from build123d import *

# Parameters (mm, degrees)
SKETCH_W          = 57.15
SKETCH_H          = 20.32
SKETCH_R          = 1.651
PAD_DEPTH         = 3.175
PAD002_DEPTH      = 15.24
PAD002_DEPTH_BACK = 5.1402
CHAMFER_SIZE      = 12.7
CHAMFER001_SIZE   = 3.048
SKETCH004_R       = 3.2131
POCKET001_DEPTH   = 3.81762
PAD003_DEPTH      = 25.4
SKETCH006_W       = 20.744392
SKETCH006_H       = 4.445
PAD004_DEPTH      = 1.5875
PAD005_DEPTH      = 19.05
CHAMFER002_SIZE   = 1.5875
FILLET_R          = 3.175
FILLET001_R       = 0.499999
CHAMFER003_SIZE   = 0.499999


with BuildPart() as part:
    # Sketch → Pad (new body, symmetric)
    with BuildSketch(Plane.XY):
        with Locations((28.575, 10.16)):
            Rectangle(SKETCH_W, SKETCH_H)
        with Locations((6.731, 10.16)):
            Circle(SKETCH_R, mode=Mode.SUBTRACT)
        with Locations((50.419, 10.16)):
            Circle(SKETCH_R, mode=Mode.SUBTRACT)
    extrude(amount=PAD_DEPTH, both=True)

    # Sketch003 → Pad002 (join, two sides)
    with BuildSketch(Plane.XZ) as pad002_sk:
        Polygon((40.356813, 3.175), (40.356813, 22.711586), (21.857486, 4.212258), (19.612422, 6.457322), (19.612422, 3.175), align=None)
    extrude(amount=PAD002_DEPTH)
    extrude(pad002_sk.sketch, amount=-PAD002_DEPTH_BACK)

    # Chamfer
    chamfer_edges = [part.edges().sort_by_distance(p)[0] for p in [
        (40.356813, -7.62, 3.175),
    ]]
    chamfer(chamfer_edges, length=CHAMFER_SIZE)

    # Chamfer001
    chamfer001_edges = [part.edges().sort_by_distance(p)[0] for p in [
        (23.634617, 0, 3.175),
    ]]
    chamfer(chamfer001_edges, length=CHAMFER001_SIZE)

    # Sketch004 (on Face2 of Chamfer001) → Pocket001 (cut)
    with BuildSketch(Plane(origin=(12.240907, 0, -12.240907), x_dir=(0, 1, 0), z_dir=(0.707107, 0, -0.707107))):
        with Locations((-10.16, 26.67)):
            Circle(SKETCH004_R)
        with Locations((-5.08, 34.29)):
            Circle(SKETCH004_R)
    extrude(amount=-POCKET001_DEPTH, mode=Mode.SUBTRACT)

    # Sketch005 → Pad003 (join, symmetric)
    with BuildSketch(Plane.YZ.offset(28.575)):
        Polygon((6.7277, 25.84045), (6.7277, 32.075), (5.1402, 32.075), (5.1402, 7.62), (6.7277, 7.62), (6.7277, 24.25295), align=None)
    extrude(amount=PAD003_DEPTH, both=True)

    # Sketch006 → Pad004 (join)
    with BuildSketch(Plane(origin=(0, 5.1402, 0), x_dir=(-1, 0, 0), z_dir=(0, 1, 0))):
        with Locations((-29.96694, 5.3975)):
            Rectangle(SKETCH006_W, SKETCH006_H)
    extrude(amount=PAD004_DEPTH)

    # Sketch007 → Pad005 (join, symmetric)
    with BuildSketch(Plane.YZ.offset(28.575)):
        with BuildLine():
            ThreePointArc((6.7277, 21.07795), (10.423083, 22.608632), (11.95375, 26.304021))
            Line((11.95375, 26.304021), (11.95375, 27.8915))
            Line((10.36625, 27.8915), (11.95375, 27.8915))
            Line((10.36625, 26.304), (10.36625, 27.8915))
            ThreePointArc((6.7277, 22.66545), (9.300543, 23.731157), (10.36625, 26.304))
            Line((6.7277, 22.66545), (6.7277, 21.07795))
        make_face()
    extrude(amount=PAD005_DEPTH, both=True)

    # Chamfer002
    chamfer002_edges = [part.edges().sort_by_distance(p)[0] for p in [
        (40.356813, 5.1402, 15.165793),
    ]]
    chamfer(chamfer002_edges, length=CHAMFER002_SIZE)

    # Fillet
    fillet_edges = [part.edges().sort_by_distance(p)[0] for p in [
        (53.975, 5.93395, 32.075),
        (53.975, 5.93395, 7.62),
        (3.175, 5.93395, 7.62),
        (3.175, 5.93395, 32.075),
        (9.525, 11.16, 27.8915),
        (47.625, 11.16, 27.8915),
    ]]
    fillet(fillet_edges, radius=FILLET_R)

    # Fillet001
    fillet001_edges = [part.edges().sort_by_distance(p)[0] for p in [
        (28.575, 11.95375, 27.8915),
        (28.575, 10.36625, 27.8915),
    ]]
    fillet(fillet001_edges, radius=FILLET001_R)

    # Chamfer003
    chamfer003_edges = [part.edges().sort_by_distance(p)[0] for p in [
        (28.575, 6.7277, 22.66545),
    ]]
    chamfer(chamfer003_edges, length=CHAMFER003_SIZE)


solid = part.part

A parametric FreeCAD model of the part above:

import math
import FreeCAD as App
import Part
import Sketcher
Q = App.Units.Quantity


def edges_at(feature, points):
    """Names of the edges that pass closest to the given points."""
    edges = feature.Shape.Edges
    near = lambda p: min(range(len(edges)), key=lambda i: edges[i].distToShape(Part.Vertex(*p))[0])
    return sorted({f"Edge{near(p) + 1}" for p in points})

doc = App.newDocument("Part")
body = doc.addObject("PartDesign::Body", "Body")

# Sketch on XY plane
sketch1 = body.newObject("Sketcher::SketchObject", "Sketch")
sketch1.AttachmentSupport = (doc.getObject("XY_Plane"), [""])
sketch1.MapMode = "FlatFace"
sketch1.addGeometry([
    Part.LineSegment(App.Vector(0, 20.3, 0), App.Vector(0, 0, 0)),  # 0
    Part.LineSegment(App.Vector(0, 0, 0), App.Vector(57.1, 0, 0)),  # 1
    Part.LineSegment(App.Vector(57.1, 0, 0), App.Vector(57.1, 20.3, 0)),  # 2
    Part.LineSegment(App.Vector(57.1, 20.3, 0), App.Vector(0, 20.3, 0)),  # 3
    Part.Circle(App.Vector(6.7, 10.2, 0), App.Vector(0, 0, 1), 1.7),  # 4
    Part.Circle(App.Vector(50.4, 10.2, 0), App.Vector(0, 0, 1), 1.7),  # 5
], False)
sketch1.addConstraint([
    Sketcher.Constraint("Coincident", 0, 2, 1, 1),
    Sketcher.Constraint("Coincident", 1, 2, 2, 1),
    Sketcher.Constraint("Coincident", 2, 2, 3, 1),
    Sketcher.Constraint("Coincident", 3, 2, 0, 1),
    Sketcher.Constraint("Vertical", 0),
    Sketcher.Constraint("Horizontal", 1),
    Sketcher.Constraint("Vertical", 2),
    Sketcher.Constraint("Horizontal", 3),
    Sketcher.Constraint("Coincident", 0, 2, -1, 1),
    Sketcher.Constraint("Equal", 4, 5),
    Sketcher.Constraint("Horizontal", 4, 3, 5, 3),
    Sketcher.Constraint("Diameter", 4, Q("0.13 in")),
    Sketcher.Constraint("DistanceY", 0, 2, 0, 1, Q("0.8 in")),
    Sketcher.Constraint("DistanceX", 1, 1, 1, 2, Q("2.25 in")),
    Sketcher.Constraint("DistanceY", -1, 1, 4, 3, Q("0.4 in")),
    Sketcher.Constraint("DistanceX", 4, 3, 5, 3, Q("1.72 in")),
    Sketcher.Constraint("DistanceX", -1, 1, 4, 3, Q("0.265 in")),
])
pad1 = body.newObject("PartDesign::Pad", "Pad")
pad1.Profile = sketch1
pad1.Length = Q("0.25 in")
pad1.Midplane = True

# Sketch on XZ plane
sketch2 = body.newObject("Sketcher::SketchObject", "Sketch001")
sketch2.AttachmentSupport = (doc.getObject("XZ_Plane"), [""])
sketch2.MapMode = "FlatFace"
sketch2.addGeometry([
    Part.LineSegment(App.Vector(40.4, 3.2, 0), App.Vector(40.4, 22.7, 0)),  # 0
    Part.LineSegment(App.Vector(40.4, 22.7, 0), App.Vector(21.9, 4.2, 0)),  # 1
    Part.LineSegment(App.Vector(21.9, 4.2, 0), App.Vector(19.6, 6.5, 0)),  # 2
    Part.LineSegment(App.Vector(19.6, 6.5, 0), App.Vector(19.6, 3.2, 0)),  # 3
    Part.LineSegment(App.Vector(19.6, 3.2, 0), App.Vector(40.4, 3.2, 0)),  # 4
], False)
sketch2.addConstraint([
    Sketcher.Constraint("Coincident", 0, 2, 1, 1),
    Sketcher.Constraint("Coincident", 1, 2, 2, 1),
    Sketcher.Constraint("Coincident", 2, 2, 3, 1),
    Sketcher.Constraint("Coincident", 3, 2, 4, 1),
    Sketcher.Constraint("Coincident", 4, 2, 0, 1),
    Sketcher.Constraint("Vertical", 0),
    Sketcher.Constraint("Vertical", 3),
    Sketcher.Constraint("Horizontal", 4),
    Sketcher.Constraint("Perpendicular", 1, 2),
    Sketcher.Constraint("Angle", 1, Q("-134.999998 deg")),
    Sketcher.Constraint("Distance", 1, Q("1.03 in")),
    Sketcher.Constraint("Distance", 2, Q("0.125 in")),
    Sketcher.Constraint("DistanceY", -1, 1, 3, 2, Q("0.125 in")),
    Sketcher.Constraint("DistanceY", 3, 2, 3, 1, Q("3.282322 mm")),
    Sketcher.Constraint("DistanceX", -1, 1, 2, 2, Q("19.612422 mm")),
])
pad2 = body.newObject("PartDesign::Pad", "Pad001")
pad2.Profile = sketch2
pad2.Type = "TwoLengths"
pad2.Length = Q("0.6 in")
pad2.Length2 = 5.1402
doc.recompute()

chamfer = body.newObject("PartDesign::Chamfer", "Chamfer")
chamfer.Base = (pad2, edges_at(pad2, [(40.357, -7.62, 3.175)]))
chamfer.Size = Q("0.5 in")
doc.recompute()

chamfer2 = body.newObject("PartDesign::Chamfer", "Chamfer001")
chamfer2.Base = (chamfer, edges_at(chamfer, [(23.635, 0, 3.175)]))
chamfer2.Size = Q("0.12 in")

# Sketch on an angled plane
sketch3 = body.newObject("Sketcher::SketchObject", "Sketch002")
sketch3.Placement = App.Placement(App.Vector(12.240907, 0, -12.240907), App.Rotation(App.Vector(0, 1, 0), App.Vector(0.707106781, 0, 0.707106781), App.Vector(0.707106781, 0, -0.707106781), "ZXY"))
sketch3.addGeometry([
    Part.Circle(App.Vector(-10.2, 26.7, 0), App.Vector(0, 0, 1), 3.2),
    Part.Circle(App.Vector(-5.1, 34.3, 0), App.Vector(0, 0, 1), 3.2),
], False)
sketch3.addConstraint([
    Sketcher.Constraint("Equal", 0, 1),
    Sketcher.Constraint("Diameter", 0, Q("0.253 in")),
    Sketcher.Constraint("DistanceX", 0, 3, -1, 1, Q("0.4 in")),
    Sketcher.Constraint("DistanceX", 1, 3, -1, 1, Q("0.2 in")),
    Sketcher.Constraint("DistanceY", 0, 3, 1, 3, Q("0.3 in")),
    Sketcher.Constraint("DistanceY", -1, 1, 0, 3, Q("1.05 in")),
])
pocket1 = body.newObject("PartDesign::Pocket", "Pocket")
pocket1.Profile = sketch3
pocket1.Length = Q("0.1503 in")

# Sketch on YZ plane
sketch4 = body.newObject("Sketcher::SketchObject", "Sketch003")
sketch4.AttachmentSupport = (doc.getObject("YZ_Plane"), [""])
sketch4.MapMode = "FlatFace"
sketch4.AttachmentOffset = App.Placement(App.Vector(0, 0, 1.125 * 25.4), App.Rotation())
sketch4.addGeometry([
    Part.LineSegment(App.Vector(6.7, 32.1, 0), App.Vector(5.1, 32.1, 0)),
    Part.LineSegment(App.Vector(5.1, 32.1, 0), App.Vector(5.1, 7.6, 0)),
    Part.LineSegment(App.Vector(5.1, 7.6, 0), App.Vector(6.7, 7.6, 0)),
    Part.LineSegment(App.Vector(6.7, 7.6, 0), App.Vector(6.7, 32.1, 0)),
], False)
sketch4.addConstraint([
    Sketcher.Constraint("Coincident", 0, 2, 1, 1),
    Sketcher.Constraint("Coincident", 1, 2, 2, 1),
    Sketcher.Constraint("Coincident", 2, 2, 3, 1),
    Sketcher.Constraint("Coincident", 3, 2, 0, 1),
    Sketcher.Constraint("Horizontal", 0),
    Sketcher.Constraint("Vertical", 1),
    Sketcher.Constraint("Horizontal", 2),
    Sketcher.Constraint("Vertical", 3),
    Sketcher.Constraint("DistanceY", -1, 1, 1, 2, Q("0.3 in")),
    Sketcher.Constraint("DistanceX", 0, 2, 0, 1, Q("0.0625 in")),
    Sketcher.Constraint("DistanceY", 1, 2, 1, 1, Q("24.455 mm")),
    Sketcher.Constraint("DistanceX", -1, 1, 0, 2, Q("5.1402 mm")),
])
pad3 = body.newObject("PartDesign::Pad", "Pad002")
pad3.Profile = sketch4
pad3.Length = Q("2 in")
pad3.Midplane = True

# Sketch on XZ plane
sketch5 = body.newObject("Sketcher::SketchObject", "Sketch004")
sketch5.AttachmentSupport = (doc.getObject("XZ_Plane"), [""])
sketch5.MapMode = "FlatFace"
sketch5.AttachmentOffset = App.Placement(App.Vector(0, 0, -5.1402), App.Rotation())
sketch5.addGeometry([
    Part.LineSegment(App.Vector(40.3, 7.6, 0), App.Vector(40.3, 3.2, 0)),
    Part.LineSegment(App.Vector(40.3, 3.2, 0), App.Vector(19.6, 3.2, 0)),
    Part.LineSegment(App.Vector(19.6, 3.2, 0), App.Vector(19.6, 7.6, 0)),
    Part.LineSegment(App.Vector(19.6, 7.6, 0), App.Vector(40.3, 7.6, 0)),
], False)
sketch5.addConstraint([
    Sketcher.Constraint("Coincident", 0, 2, 1, 1),
    Sketcher.Constraint("Coincident", 1, 2, 2, 1),
    Sketcher.Constraint("Coincident", 2, 2, 3, 1),
    Sketcher.Constraint("Coincident", 3, 2, 0, 1),
    Sketcher.Constraint("Vertical", 0),
    Sketcher.Constraint("Horizontal", 1),
    Sketcher.Constraint("Vertical", 2),
    Sketcher.Constraint("Horizontal", 3),
    Sketcher.Constraint("DistanceY", -1, 1, 2, 2, Q("0.3 in")),
    Sketcher.Constraint("DistanceY", 0, 2, 0, 1, Q("0.175 in")),
    Sketcher.Constraint("DistanceX", 1, 2, 1, 1, Q("20.744392 mm")),
    Sketcher.Constraint("DistanceX", -1, 1, 0, 2, Q("40.339136 mm")),
])
pad4 = body.newObject("PartDesign::Pad", "Pad003")
pad4.Profile = sketch5
pad4.Length = Q("0.0625 in")
pad4.Reversed = True

# Sketch on YZ plane
sketch6 = body.newObject("Sketcher::SketchObject", "Sketch005")
sketch6.AttachmentSupport = (doc.getObject("YZ_Plane"), [""])
sketch6.MapMode = "FlatFace"
sketch6.AttachmentOffset = App.Placement(App.Vector(0, 0, 1.125 * 25.4), App.Rotation())
sketch6.addGeometry([
    Part.ArcOfCircle(Part.Circle(App.Vector(6.7, 26.3, 0), App.Vector(0, 0, 1), 5.2), math.radians(-90), math.radians(0)),  # 0
    Part.LineSegment(App.Vector(12, 26.3, 0), App.Vector(12, 27.9, 0)),  # 1
    Part.LineSegment(App.Vector(12, 27.9, 0), App.Vector(10.4, 27.9, 0)),  # 2
    Part.LineSegment(App.Vector(10.4, 27.9, 0), App.Vector(10.4, 26.3, 0)),  # 3
    Part.ArcOfCircle(Part.Circle(App.Vector(6.7, 26.3, 0), App.Vector(0, 0, 1), 3.6), math.radians(-90), math.radians(0)),  # 4
    Part.LineSegment(App.Vector(6.7, 22.7, 0), App.Vector(6.7, 21.1, 0)),  # 5
], False)
sketch6.addConstraint([
    Sketcher.Constraint("Coincident", 0, 2, 1, 1),
    Sketcher.Constraint("Coincident", 1, 2, 2, 1),
    Sketcher.Constraint("Coincident", 2, 2, 3, 1),
    Sketcher.Constraint("Tangent", 3, 2, 4, 2),
    Sketcher.Constraint("Coincident", 4, 1, 5, 1),
    Sketcher.Constraint("Coincident", 5, 2, 0, 1),
    Sketcher.Constraint("Vertical", 1),
    Sketcher.Constraint("Horizontal", 2),
    Sketcher.Constraint("Vertical", 3),
    Sketcher.Constraint("Vertical", 5),
    Sketcher.Constraint("Coincident", 4, 3, 0, 3),
    Sketcher.Constraint("Vertical", 0, 3, 4, 1),
    Sketcher.Constraint("Equal", 2, 3),
    Sketcher.Constraint("DistanceX", 2, 2, 2, 1, Q("0.0625 in")),
    Sketcher.Constraint("Radius", 0, Q("5.22605 mm")),
    Sketcher.Constraint("DistanceY", 1, 1, 1, 2, Q("1.587479 mm")),
    Sketcher.Constraint("DistanceX", -1, 1, 0, 3, Q("6.7277 mm")),
    Sketcher.Constraint("DistanceY", -1, 1, 0, 3, Q("26.304 mm")),
])
pad5 = body.newObject("PartDesign::Pad", "Pad004")
pad5.Profile = sketch6
pad5.Length = Q("1.5 in")
pad5.Midplane = True
doc.recompute()

chamfer3 = body.newObject("PartDesign::Chamfer", "Chamfer002")
chamfer3.Base = (pad5, edges_at(pad5, [(40.357, 5.14, 15.166)]))
chamfer3.Size = Q("0.0625 in")
doc.recompute()

fillet = body.newObject("PartDesign::Fillet", "Fillet")
fillet.Base = (chamfer3, edges_at(chamfer3, [
    (53.975, 5.934, 32.075),
    (53.975, 5.934, 7.62),
    (3.175, 5.934, 7.62),
    (3.175, 5.934, 32.075),
    (9.525, 11.16, 27.892),
    (47.625, 11.16, 27.892),
]))
fillet.Radius = Q("0.125 in")
doc.recompute()

fillet2 = body.newObject("PartDesign::Fillet", "Fillet001")
fillet2.Base = (fillet, edges_at(fillet, [(28.575, 11.954, 27.892), (28.575, 10.366, 27.892)]))
fillet2.Radius = 0.499999
doc.recompute()

chamfer4 = body.newObject("PartDesign::Chamfer", "Chamfer003")
chamfer4.Base = (fillet2, edges_at(fillet2, [(28.575, 6.728, 22.665)]))
chamfer4.Size = 0.499999

doc.recompute()
